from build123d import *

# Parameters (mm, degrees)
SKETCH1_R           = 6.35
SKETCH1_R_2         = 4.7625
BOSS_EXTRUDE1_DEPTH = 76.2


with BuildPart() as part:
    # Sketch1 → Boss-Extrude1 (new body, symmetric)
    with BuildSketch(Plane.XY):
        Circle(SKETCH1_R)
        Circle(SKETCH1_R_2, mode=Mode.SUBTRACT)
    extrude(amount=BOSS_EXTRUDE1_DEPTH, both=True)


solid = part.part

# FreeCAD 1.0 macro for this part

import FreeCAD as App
import Part
import Sketcher
from FreeCAD import Vector
Q = App.Units.Quantity

doc = App.newDocument("Part")
body = doc.addObject("PartDesign::Body", "Body")

# Sketch on XY plane
sketch1 = doc.addObject("Sketcher::SketchObject", "Sketch")
body.addObject(sketch1)
sketch1.AttachmentSupport = (doc.XY_Plane, [""])
sketch1.MapMode = "FlatFace"
sketch1.addGeometry([
    Part.Circle(Vector(0, 0, 0), Vector(0, 0, 1), 6.3),
    Part.Circle(Vector(0, 0, 0), Vector(0, 0, 1), 4.8),
], False)
sketch1.addConstraint([
    Sketcher.Constraint("Coincident", 0, 3, -1, 1),
    Sketcher.Constraint("Coincident", 1, 3, -1, 1),
    Sketcher.Constraint("Diameter", 0, Q("0.5 in")),
    Sketcher.Constraint("Diameter", 1, Q("0.375 in")),
])
pad1 = doc.addObject("PartDesign::Pad", "Pad")
body.addObject(pad1)
pad1.Profile = sketch1
pad1.Length = Q("6 in")
pad1.Midplane = True

doc.recompute()
